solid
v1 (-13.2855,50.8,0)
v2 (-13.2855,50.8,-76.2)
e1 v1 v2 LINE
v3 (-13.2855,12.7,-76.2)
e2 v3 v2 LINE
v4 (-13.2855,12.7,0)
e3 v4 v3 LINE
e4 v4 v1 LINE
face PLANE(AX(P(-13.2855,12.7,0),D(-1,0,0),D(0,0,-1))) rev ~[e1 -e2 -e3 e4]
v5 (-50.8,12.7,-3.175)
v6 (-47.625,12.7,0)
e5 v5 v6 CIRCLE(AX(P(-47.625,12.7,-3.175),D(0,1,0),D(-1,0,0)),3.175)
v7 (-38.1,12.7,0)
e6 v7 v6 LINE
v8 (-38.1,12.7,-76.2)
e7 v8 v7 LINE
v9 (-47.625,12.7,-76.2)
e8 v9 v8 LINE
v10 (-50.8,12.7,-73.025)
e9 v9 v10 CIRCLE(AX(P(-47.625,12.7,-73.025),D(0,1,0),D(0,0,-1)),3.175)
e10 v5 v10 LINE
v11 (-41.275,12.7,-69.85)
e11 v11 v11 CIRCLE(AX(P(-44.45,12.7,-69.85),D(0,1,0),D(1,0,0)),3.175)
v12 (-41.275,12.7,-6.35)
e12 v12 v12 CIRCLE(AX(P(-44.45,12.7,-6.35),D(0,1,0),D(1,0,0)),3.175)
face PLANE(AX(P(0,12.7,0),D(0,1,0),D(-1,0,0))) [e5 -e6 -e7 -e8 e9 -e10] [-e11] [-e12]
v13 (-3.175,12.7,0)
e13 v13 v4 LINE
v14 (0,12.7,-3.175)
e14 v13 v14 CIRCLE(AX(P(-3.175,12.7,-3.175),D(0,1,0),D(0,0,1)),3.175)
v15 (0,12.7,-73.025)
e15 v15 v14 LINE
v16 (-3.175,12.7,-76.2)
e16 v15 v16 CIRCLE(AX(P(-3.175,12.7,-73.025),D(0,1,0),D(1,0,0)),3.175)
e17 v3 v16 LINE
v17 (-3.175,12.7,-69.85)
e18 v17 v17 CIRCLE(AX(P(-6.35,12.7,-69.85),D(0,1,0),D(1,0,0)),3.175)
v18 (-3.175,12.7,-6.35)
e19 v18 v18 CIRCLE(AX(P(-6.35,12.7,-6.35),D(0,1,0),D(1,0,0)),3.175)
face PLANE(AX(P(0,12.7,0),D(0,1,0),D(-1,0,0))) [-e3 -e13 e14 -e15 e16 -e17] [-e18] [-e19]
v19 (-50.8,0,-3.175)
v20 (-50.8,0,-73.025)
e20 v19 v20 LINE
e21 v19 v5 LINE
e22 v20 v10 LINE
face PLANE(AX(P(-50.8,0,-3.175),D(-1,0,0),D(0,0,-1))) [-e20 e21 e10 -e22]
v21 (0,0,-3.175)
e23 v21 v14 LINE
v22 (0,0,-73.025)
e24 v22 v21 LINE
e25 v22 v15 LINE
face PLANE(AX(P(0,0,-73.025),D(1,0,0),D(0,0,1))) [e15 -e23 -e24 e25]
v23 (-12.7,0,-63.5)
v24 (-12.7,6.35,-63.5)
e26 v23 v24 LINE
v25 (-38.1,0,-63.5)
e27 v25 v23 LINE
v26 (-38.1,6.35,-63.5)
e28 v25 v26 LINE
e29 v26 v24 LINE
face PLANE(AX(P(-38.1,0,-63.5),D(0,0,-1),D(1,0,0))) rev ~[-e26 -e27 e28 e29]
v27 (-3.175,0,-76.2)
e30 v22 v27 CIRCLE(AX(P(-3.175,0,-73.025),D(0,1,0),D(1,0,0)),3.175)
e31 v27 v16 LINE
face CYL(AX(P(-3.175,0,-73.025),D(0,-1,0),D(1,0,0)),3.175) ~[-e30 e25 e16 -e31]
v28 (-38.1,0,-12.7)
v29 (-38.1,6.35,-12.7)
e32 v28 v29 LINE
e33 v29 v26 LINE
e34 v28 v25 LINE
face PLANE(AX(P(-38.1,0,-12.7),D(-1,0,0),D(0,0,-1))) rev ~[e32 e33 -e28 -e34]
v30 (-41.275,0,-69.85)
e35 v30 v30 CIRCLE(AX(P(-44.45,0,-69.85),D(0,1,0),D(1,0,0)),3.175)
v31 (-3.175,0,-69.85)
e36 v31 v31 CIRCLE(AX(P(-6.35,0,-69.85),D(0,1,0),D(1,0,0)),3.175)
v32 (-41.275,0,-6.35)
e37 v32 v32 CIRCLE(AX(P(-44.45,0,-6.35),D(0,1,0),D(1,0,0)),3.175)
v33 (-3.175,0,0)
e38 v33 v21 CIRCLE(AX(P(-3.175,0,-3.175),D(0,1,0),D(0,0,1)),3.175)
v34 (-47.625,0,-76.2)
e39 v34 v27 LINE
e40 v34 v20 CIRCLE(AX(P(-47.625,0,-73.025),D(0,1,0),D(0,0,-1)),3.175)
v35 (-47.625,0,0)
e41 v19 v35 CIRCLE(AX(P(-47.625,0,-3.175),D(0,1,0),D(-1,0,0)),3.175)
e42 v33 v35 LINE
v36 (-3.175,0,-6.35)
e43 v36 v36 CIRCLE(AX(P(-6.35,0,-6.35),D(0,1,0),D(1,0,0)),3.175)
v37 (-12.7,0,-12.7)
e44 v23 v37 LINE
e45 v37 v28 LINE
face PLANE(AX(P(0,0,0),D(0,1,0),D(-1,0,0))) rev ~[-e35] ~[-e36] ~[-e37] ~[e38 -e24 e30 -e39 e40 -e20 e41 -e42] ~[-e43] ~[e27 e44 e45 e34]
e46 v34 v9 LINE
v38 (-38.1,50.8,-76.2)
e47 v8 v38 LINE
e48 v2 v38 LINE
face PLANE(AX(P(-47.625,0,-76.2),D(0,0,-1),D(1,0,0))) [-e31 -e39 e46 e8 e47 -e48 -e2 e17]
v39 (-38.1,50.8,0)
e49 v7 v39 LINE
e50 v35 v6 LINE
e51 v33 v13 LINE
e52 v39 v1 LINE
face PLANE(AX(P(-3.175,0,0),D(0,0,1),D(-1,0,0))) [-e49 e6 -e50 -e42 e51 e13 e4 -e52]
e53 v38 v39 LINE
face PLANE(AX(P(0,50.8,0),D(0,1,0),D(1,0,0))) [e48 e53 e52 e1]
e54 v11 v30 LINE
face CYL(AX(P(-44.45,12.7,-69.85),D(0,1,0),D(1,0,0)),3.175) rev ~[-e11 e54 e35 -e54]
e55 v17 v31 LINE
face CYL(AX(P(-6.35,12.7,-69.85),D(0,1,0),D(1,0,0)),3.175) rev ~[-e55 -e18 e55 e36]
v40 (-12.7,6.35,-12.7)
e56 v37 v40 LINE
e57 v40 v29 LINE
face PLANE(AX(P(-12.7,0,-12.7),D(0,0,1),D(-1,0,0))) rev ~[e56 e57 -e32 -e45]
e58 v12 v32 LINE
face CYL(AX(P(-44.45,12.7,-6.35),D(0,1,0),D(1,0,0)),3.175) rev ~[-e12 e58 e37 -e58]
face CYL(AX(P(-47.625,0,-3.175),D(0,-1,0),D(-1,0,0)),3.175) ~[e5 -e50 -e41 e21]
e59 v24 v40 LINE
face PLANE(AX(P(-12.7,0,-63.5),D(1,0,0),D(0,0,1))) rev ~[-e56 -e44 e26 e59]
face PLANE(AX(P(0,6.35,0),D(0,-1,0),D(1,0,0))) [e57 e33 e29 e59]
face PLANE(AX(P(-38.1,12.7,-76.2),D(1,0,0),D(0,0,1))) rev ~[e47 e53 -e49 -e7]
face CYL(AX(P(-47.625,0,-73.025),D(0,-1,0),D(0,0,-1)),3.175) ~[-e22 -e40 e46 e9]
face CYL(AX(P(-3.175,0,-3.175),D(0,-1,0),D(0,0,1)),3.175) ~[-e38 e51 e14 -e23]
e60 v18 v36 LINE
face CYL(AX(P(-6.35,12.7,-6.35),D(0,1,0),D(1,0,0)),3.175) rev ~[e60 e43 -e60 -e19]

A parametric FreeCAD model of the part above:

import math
import FreeCAD as App
import Part
import Sketcher

V = App.Vector
Q = App.Units.Quantity


def add_polygon(sketch, points):
    """Adds a closed chain of lines whose ends are joined by coincident constraints."""
    first, n = sketch.GeometryCount, len(points)
    for a, b in zip(points, points[1:] + points[:1]):
        sketch.addGeometry(Part.LineSegment(App.Vector(*a, 0), App.Vector(*b, 0)), False)
    for i in range(n):
        sketch.addConstraint(Sketcher.Constraint("Coincident", first + i, 2, first + (i + 1) % n, 1))

doc = App.newDocument("Part")
body = doc.addObject("PartDesign::Body", "Body")

# Sketch on XZ plane
sketch1 = doc.addObject("Sketcher::SketchObject", "Sketch")
body.addObject(sketch1)
sketch1.AttachmentSupport = (doc.XZ_Plane, [""])
sketch1.MapMode = "FlatFace"
sketch1.addGeometry([
    Part.LineSegment(V(-47.625, 0, 0), V(-3.175, 0, 0)),  # 0
    Part.ArcOfCircle(Part.Circle(V(-3.175, -3.175, 0), V(0, 0, 1), 3.175), math.radians(0), math.radians(90)),  # 1
    Part.LineSegment(V(0, -3.175, 0), V(0, -73.025, 0)),  # 2
    Part.ArcOfCircle(Part.Circle(V(-3.175, -73.025, 0), V(0, 0, 1), 3.175), math.radians(-90), math.radians(0)),  # 3
    Part.LineSegment(V(-3.175, -76.2, 0), V(-47.625, -76.2, 0)),  # 4
    Part.ArcOfCircle(Part.Circle(V(-47.625, -73.025, 0), V(0, 0, 1), 3.175), math.radians(180), math.radians(270)),  # 5
    Part.LineSegment(V(-50.8, -73.025, 0), V(-50.8, -3.175, 0)),  # 6
    Part.ArcOfCircle(Part.Circle(V(-47.625, -3.175, 0), V(0, 0, 1), 3.175), math.radians(90), math.radians(180)),  # 7
], False)
sketch1.addConstraint([
    Sketcher.Constraint("Tangent", 0, 2, 1, 2),
    Sketcher.Constraint("Tangent", 1, 1, 2, 1),
    Sketcher.Constraint("Tangent", 2, 2, 3, 2),
    Sketcher.Constraint("Tangent", 3, 1, 4, 1),
    Sketcher.Constraint("Tangent", 4, 2, 5, 2),
    Sketcher.Constraint("Tangent", 5, 1, 6, 1),
    Sketcher.Constraint("Tangent", 6, 2, 7, 2),
    Sketcher.Constraint("Tangent", 7, 1, 0, 1),
    Sketcher.Constraint("Horizontal", 0),
    Sketcher.Constraint("Vertical", 2),
    Sketcher.Constraint("Horizontal", 4),
    Sketcher.Constraint("Vertical", 6),
    Sketcher.Constraint("Equal", 1, 3),
    Sketcher.Constraint("Equal", 3, 5),
    Sketcher.Constraint("Equal", 5, 7),
    Sketcher.Constraint("PointOnObject", 0, 2, -1),
    Sketcher.Constraint("PointOnObject", 1, 1, -2),
    Sketcher.Constraint("DistanceY", 3, 1, -1, 1, Q("3 in")),
    Sketcher.Constraint("DistanceX", 5, 1, -1, 1, Q("2 in")),
    Sketcher.Constraint("Radius", 1, Q("0.125 in")),
])
pad1 = doc.addObject("PartDesign::Pad", "Pad")
body.addObject(pad1)
pad1.Profile = sketch1
pad1.Length = Q("0.5 in")
pad1.Reversed = True

# Sketch on XZ plane
sketch2 = doc.addObject("Sketcher::SketchObject", "Sketch001")
body.addObject(sketch2)
sketch2.AttachmentSupport = (doc.XZ_Plane, [""])
sketch2.MapMode = "FlatFace"
sketch2.AttachmentOffset = App.Placement(V(0, 0, -0.5 * 25.4), App.Rotation())
sketch2.addGeometry([
    Part.Circle(V(-6.35, -6.35, 0), V(0, 0, 1), 3.175),
    Part.Circle(V(-6.35, -69.85, 0), V(0, 0, 1), 3.175),
    Part.Circle(V(-44.45, -6.35, 0), V(0, 0, 1), 3.175),
    Part.Circle(V(-44.45, -69.85, 0), V(0, 0, 1), 3.175),
], False)
sketch2.addConstraint([
    Sketcher.Constraint("Equal", 0, 1),
    Sketcher.Constraint("Equal", 1, 2),
    Sketcher.Constraint("Equal", 2, 3),
    Sketcher.Constraint("Horizontal", 0, 3, 2, 3),
    Sketcher.Constraint("Horizontal", 1, 3, 3, 3),
    Sketcher.Constraint("Vertical", 0, 3, 1, 3),
    Sketcher.Constraint("Vertical", 2, 3, 3, 3),
    Sketcher.Constraint("Diameter", 0, Q("0.25 in")),
    Sketcher.Constraint("DistanceX", 0, 3, -1, 1, Q("0.25 in")),
    Sketcher.Constraint("DistanceY", 0, 3, -1, 1, Q("0.25 in")),
    Sketcher.Constraint("DistanceY", 1, 3, 0, 3, Q("2.5 in")),
    Sketcher.Constraint("DistanceX", 2, 3, 0, 3, Q("1.5 in")),
])
pocket1 = doc.addObject("PartDesign::Pocket", "Pocket")
body.addObject(pocket1)
pocket1.Profile = sketch2
pocket1.Type = "ThroughAll"
pocket1.Reversed = True

# Sketch on XZ plane
sketch3 = doc.addObject("Sketcher::SketchObject", "Sketch002")
body.addObject(sketch3)
sketch3.AttachmentSupport = (doc.XZ_Plane, [""])
sketch3.MapMode = "FlatFace"
sketch3.AttachmentOffset = App.Placement(V(0, 0, -0.5 * 25.4), App.Rotation())
add_polygon(sketch3, [(-38.1, -76.2), (-38.1, 0), (-13.2855, 0), (-13.2855, -76.2)])  # lines 0-3
sketch3.addConstraint([
    Sketcher.Constraint("Vertical", 0),
    Sketcher.Constraint("Horizontal", 1),
    Sketcher.Constraint("Vertical", 2),
    Sketcher.Constraint("Horizontal", 3),
    Sketcher.Constraint("PointOnObject", 0, 2, -1),
    Sketcher.Constraint("DistanceY", 0, 1, 0, 2, Q("3 in")),
    Sketcher.Constraint("DistanceX", 0, 2, -1, 1, Q("1.5 in")),
    Sketcher.Constraint("DistanceX", 1, 1, 1, 2, Q("24.8145 mm")),
])
pad2 = doc.addObject("PartDesign::Pad", "Pad001")
body.addObject(pad2)
pad2.Profile = sketch3
pad2.Length = Q("1.5 in")
pad2.Reversed = True

# Sketch on XZ plane
sketch4 = doc.addObject("Sketcher::SketchObject", "Sketch003")
body.addObject(sketch4)
sketch4.AttachmentSupport = (doc.XZ_Plane, [""])
sketch4.MapMode = "FlatFace"
add_polygon(sketch4, [(-12.7, -63.5), (-12.7, -12.7), (-38.1, -12.7), (-38.1, -63.5)])  # lines 0-3
sketch4.addConstraint([
    Sketcher.Constraint("Vertical", 0),
    Sketcher.Constraint("Horizontal", 1),
    Sketcher.Constraint("Vertical", 2),
    Sketcher.Constraint("Horizontal", 3),
    Sketcher.Constraint("DistanceX", 0, 2, -1, 1, Q("0.5 in")),
    Sketcher.Constraint("DistanceY", 0, 2, -1, 1, Q("0.5 in")),
    Sketcher.Constraint("DistanceX", 1, 2, 1, 1, Q("1 in")),
    Sketcher.Constraint("DistanceY", 0, 1, 0, 2, Q("2 in")),
])
pocket2 = doc.addObject("PartDesign::Pocket", "Pocket001")
body.addObject(pocket2)
pocket2.Profile = sketch4
pocket2.Length = Q("0.25 in")

doc.recompute()
